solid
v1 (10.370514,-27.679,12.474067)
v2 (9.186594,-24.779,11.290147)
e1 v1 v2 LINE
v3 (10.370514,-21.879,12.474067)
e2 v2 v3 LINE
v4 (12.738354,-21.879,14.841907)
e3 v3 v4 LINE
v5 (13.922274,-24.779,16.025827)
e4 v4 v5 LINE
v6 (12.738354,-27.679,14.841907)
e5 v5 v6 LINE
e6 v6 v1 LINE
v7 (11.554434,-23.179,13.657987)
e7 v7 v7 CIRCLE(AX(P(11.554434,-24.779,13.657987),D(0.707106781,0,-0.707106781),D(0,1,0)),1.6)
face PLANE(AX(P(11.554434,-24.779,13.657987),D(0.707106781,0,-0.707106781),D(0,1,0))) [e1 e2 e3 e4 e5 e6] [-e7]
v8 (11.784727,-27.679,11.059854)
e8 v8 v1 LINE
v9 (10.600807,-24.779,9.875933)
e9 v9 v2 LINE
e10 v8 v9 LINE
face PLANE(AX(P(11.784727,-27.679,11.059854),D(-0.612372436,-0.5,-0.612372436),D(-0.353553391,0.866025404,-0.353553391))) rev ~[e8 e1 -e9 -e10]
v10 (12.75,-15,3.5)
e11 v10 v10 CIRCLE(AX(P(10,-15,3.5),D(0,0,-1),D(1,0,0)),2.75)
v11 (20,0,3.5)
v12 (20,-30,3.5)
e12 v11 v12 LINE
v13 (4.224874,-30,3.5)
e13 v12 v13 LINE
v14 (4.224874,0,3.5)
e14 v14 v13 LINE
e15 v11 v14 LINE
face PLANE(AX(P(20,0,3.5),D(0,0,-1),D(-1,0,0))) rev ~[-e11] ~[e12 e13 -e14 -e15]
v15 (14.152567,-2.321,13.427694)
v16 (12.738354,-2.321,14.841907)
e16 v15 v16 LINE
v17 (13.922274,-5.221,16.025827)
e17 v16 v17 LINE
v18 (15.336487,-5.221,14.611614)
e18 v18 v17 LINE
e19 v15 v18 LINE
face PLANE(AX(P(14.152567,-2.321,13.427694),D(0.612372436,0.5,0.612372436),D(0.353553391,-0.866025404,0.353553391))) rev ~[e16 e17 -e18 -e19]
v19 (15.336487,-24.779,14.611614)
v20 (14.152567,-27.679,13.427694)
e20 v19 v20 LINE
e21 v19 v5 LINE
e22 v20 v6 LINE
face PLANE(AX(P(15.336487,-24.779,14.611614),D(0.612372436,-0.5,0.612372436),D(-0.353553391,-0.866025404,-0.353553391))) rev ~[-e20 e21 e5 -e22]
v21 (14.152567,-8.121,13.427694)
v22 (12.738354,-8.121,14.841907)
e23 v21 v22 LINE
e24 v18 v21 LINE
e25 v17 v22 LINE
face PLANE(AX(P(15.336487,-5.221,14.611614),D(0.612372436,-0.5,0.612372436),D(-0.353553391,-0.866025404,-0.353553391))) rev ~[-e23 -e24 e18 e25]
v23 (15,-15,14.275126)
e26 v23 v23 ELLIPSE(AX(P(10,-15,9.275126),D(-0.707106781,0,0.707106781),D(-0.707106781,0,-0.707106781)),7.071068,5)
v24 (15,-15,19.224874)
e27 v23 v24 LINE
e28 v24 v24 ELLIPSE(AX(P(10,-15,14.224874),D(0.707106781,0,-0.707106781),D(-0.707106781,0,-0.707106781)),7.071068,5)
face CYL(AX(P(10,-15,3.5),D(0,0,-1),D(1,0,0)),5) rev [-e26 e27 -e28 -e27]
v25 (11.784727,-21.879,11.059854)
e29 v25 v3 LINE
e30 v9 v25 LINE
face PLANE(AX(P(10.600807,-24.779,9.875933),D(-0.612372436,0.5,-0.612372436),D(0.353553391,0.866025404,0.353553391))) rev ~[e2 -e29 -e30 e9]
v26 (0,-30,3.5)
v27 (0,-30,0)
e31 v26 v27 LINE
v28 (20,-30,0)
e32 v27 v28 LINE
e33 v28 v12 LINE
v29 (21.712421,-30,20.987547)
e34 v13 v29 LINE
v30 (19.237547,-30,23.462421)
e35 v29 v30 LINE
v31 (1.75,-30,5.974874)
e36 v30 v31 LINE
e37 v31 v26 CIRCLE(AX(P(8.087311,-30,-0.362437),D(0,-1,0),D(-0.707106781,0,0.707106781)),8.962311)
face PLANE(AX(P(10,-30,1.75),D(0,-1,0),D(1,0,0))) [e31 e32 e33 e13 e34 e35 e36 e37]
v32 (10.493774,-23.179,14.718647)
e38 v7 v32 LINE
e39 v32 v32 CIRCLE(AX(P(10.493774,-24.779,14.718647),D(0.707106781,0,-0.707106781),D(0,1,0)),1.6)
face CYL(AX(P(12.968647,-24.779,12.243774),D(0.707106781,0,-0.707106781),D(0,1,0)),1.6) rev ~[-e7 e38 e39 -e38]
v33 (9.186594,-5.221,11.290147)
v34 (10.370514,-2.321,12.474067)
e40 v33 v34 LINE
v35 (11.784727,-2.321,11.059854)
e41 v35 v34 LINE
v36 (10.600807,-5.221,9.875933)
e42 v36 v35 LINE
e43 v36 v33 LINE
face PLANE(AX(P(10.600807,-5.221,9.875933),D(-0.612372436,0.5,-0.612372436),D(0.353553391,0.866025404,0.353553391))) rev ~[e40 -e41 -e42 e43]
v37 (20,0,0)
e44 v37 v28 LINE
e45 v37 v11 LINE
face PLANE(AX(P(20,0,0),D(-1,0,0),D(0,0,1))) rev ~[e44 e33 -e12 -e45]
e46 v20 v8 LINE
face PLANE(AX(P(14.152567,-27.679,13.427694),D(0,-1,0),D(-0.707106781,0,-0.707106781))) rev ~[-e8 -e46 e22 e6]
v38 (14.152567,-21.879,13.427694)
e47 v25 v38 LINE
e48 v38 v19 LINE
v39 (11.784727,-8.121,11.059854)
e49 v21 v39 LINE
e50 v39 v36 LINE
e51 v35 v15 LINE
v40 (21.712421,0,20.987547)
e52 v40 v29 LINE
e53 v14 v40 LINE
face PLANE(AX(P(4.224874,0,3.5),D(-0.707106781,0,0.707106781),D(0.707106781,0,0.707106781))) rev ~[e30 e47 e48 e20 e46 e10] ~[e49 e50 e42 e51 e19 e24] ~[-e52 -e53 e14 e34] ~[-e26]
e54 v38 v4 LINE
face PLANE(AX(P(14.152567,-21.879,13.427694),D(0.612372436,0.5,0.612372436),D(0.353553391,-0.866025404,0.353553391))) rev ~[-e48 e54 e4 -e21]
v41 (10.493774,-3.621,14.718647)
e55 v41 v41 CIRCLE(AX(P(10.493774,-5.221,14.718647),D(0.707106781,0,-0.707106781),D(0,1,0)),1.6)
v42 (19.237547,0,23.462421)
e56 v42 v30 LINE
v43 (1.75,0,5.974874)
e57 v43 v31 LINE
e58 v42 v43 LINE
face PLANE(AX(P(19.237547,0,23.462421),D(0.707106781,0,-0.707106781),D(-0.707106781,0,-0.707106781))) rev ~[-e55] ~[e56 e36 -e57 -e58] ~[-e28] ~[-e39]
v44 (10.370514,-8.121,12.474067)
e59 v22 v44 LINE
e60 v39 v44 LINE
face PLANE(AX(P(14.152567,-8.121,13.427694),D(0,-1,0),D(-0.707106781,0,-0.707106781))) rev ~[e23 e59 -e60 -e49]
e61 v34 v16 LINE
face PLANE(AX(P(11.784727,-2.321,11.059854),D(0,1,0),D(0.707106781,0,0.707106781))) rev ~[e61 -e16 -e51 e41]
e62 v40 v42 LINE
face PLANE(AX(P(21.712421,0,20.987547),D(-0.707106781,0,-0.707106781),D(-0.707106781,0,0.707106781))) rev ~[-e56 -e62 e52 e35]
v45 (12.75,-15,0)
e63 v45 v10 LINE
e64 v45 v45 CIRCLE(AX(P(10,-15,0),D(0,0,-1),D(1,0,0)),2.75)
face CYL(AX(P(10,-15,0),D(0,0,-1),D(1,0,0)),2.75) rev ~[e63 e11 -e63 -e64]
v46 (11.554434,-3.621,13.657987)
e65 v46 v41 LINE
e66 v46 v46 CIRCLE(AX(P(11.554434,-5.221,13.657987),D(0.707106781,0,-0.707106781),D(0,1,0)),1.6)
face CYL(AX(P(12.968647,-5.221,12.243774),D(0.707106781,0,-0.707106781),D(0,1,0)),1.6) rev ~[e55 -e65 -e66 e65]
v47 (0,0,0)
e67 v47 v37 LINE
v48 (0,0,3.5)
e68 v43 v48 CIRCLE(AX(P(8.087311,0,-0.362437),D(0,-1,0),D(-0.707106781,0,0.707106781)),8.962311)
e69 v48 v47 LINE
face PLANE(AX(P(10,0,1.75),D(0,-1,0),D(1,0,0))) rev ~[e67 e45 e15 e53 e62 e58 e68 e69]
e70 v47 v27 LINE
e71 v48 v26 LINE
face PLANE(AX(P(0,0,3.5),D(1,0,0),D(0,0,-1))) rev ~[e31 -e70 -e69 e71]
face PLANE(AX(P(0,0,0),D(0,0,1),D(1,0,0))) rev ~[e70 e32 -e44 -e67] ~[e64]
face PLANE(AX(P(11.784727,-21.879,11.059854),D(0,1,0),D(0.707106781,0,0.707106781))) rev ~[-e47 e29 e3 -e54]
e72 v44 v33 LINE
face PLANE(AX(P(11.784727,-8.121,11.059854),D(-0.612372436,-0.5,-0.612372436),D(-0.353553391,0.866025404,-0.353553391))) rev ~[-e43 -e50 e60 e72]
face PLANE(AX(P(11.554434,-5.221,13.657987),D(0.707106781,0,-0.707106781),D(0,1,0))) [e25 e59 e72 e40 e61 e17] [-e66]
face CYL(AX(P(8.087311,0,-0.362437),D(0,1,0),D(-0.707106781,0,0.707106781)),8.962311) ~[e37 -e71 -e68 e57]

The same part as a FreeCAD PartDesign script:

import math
import FreeCAD as App
import Part
import Sketcher

V = App.Vector
Q = App.Units.Quantity


def add_polygon(sketch, points):
    """Adds a closed chain of lines whose ends are joined by coincident constraints."""
    first, n = sketch.GeometryCount, len(points)
    for a, b in zip(points, points[1:] + points[:1]):
        sketch.addGeometry(Part.LineSegment(App.Vector(*a, 0), App.Vector(*b, 0)), False)
    for i in range(n):
        sketch.addConstraint(Sketcher.Constraint("Coincident", first + i, 2, first + (i + 1) % n, 1))

doc = App.newDocument("Part")
body = doc.addObject("PartDesign::Body", "Body")

sketch1 = body.newObject("Sketcher::SketchObject", "Sketch")
sketch1.AttachmentSupport = (doc.getObject("XZ_Plane"), [""])
sketch1.MapMode = "FlatFace"
sketch1.addGeometry(Part.LineSegment(V(0, 3.5, 0), V(0, 0, 0)), False)
sketch1.addGeometry(Part.LineSegment(V(0, 0, 0), V(20, 0, 0)), False)
sketch1.addGeometry(Part.LineSegment(V(20, 0, 0), V(20, 3.5, 0)), False)
sketch1.addGeometry(Part.LineSegment(V(20, 3.5, 0), V(4.2, 3.5, 0)), False)
sketch1.addGeometry(Part.LineSegment(V(4.2, 3.5, 0), V(21.7, 21, 0)), False)
sketch1.addGeometry(Part.LineSegment(V(21.7, 21, 0), V(19.2, 23.5, 0)), False)
sketch1.addGeometry(Part.LineSegment(V(19.2, 23.5, 0), V(1.8, 6, 0)), False)
sketch1.addGeometry(Part.ArcOfCircle(Part.Circle(V(8.1, -0.4, 0), V(0, 0, 1), 9), math.radians(135), math.radians(154.47)), False)
sketch1.addConstraint(Sketcher.Constraint("Coincident", 0, 2, 1, 1))
sketch1.addConstraint(Sketcher.Constraint("Coincident", 1, 2, 2, 1))
sketch1.addConstraint(Sketcher.Constraint("Coincident", 2, 2, 3, 1))
sketch1.addConstraint(Sketcher.Constraint("Coincident", 3, 2, 4, 1))
sketch1.addConstraint(Sketcher.Constraint("Coincident", 4, 2, 5, 1))
sketch1.addConstraint(Sketcher.Constraint("Coincident", 5, 2, 6, 1))
sketch1.addConstraint(Sketcher.Constraint("Tangent", 6, 2, 7, 1))
sketch1.addConstraint(Sketcher.Constraint("Coincident", 7, 2, 0, 1))
sketch1.addConstraint(Sketcher.Constraint("Vertical", 0))
sketch1.addConstraint(Sketcher.Constraint("Horizontal", 1))
sketch1.addConstraint(Sketcher.Constraint("Vertical", 2))
sketch1.addConstraint(Sketcher.Constraint("Horizontal", 3))
sketch1.addConstraint(Sketcher.Constraint("Coincident", 0, 2, -1, 1))
sketch1.addConstraint(Sketcher.Constraint("Perpendicular", 4, 5))
sketch1.addConstraint(Sketcher.Constraint("Perpendicular", 5, 6))
sketch1.addConstraint(Sketcher.Constraint("Horizontal", 3, 2, 7, 2))
sketch1.addConstraint(Sketcher.Constraint("Equal", 4, 6))
sketch1.addConstraint(Sketcher.Constraint("DistanceX", 1, 1, 1, 2, 20.0))
sketch1.addConstraint(Sketcher.Constraint("Angle", 4, Q("45 deg")))
sketch1.addConstraint(Sketcher.Constraint("DistanceY", 0, 2, 0, 1, 3.5))
sketch1.addConstraint(Sketcher.Constraint("Distance", 5, 3.5))
sketch1.addConstraint(Sketcher.Constraint("DistanceX", -1, 1, 6, 2, 1.75))
sketch1.addConstraint(Sketcher.Constraint("DistanceX", -1, 1, 4, 2, 21.712421))
pad1 = body.newObject("PartDesign::Pad", "Pad")
pad1.Profile = sketch1
pad1.Length = 30

sketch2 = body.newObject("Sketcher::SketchObject", "Sketch001")
sketch2.AttachmentSupport = (doc.getObject("XY_Plane"), [""])
sketch2.MapMode = "FlatFace"
sketch2.addGeometry(Part.Circle(V(10, -15, 0), V(0, 0, 1), 2.8), False)
sketch2.addConstraint(Sketcher.Constraint("Diameter", 0, 5.5))
sketch2.addConstraint(Sketcher.Constraint("DistanceX", -1, 1, 0, 3, 10.0))
sketch2.addConstraint(Sketcher.Constraint("DistanceY", 0, 3, -1, 1, 15.0))
pocket1 = body.newObject("PartDesign::Pocket", "Pocket")
pocket1.Profile = sketch2
pocket1.Length = 3.5
pocket1.Reversed = True

sketch3 = body.newObject("Sketcher::SketchObject", "Sketch002")
sketch3.AttachmentSupport = (doc.getObject("XY_Plane"), [""])
sketch3.MapMode = "FlatFace"
sketch3.AttachmentOffset = App.Placement(V(0, 0, 3.5), App.Rotation())
sketch3.addGeometry(Part.Circle(V(10, -15, 0), V(0, 0, 1), 5), False)
sketch3.addConstraint(Sketcher.Constraint("Diameter", 0, 10.0))
sketch3.addConstraint(Sketcher.Constraint("DistanceX", -1, 1, 0, 3, 10.0))
sketch3.addConstraint(Sketcher.Constraint("DistanceY", 0, 3, -1, 1, 15.0))
pocket2 = body.newObject("PartDesign::Pocket", "Pocket001")
pocket2.Profile = sketch3
pocket2.Length = 16.724874
pocket2.Reversed = True

sketch4 = body.newObject("Sketcher::SketchObject", "Sketch003")
sketch4.Placement = App.Placement(V(0.362437, 0, -0.362437), App.Rotation(V(0, 1, 0), V(0.707106781, 0, 0.707106781), V(0.707106781, 0, -0.707106781), "ZXY"))
sketch4.addGeometry(Part.Circle(V(-5.2, 17.8, 0), V(0, 0, 1), 1.6), False)
sketch4.addGeometry(Part.Circle(V(-24.8, 17.8, 0), V(0, 0, 1), 1.6), False)
sketch4.addConstraint(Sketcher.Constraint("Equal", 0, 1))
sketch4.addConstraint(Sketcher.Constraint("Horizontal", 0, 3, 1, 3))
sketch4.addConstraint(Sketcher.Constraint("Diameter", 0, 3.2))
sketch4.addConstraint(Sketcher.Constraint("DistanceX", 0, 3, -1, 1, 5.221))
sketch4.addConstraint(Sketcher.Constraint("DistanceX", 1, 3, -1, 1, 24.779))
sketch4.addConstraint(Sketcher.Constraint("DistanceY", -1, 1, 0, 3, 17.827874))
pocket3 = body.newObject("PartDesign::Pocket", "Pocket002")
pocket3.Profile = sketch4
pocket3.Type = "ThroughAll"

sketch5 = body.newObject("Sketcher::SketchObject", "Sketch004")
sketch5.Placement = App.Placement(V(0.362437, 0, -0.362437), App.Rotation(V(0, 1, 0), V(0.707106781, 0, 0.707106781), V(0.707106781, 0, -0.707106781), "ZXY"))
add_polygon(sketch5, [(-21.9, 19.5), (-24.8, 21.2), (-27.7, 19.5), (-27.7, 16.2), (-24.8, 14.5), (-21.9, 16.2)])
sketch5.addGeometry(Part.Circle(V(-24.8, 17.8, 0), V(0, 0, 1), 1.6), False)
add_polygon(sketch5, [(-8.1, 16.2), (-5.2, 14.5), (-2.3, 16.2), (-2.3, 19.5), (-5.2, 21.2), (-8.1, 19.5)])
sketch5.addGeometry(Part.Circle(V(-5.2, 17.8, 0), V(0, 0, 1), 1.6), False)
sketch5.addConstraint(Sketcher.Constraint("Vertical", 2))
sketch5.addConstraint(Sketcher.Constraint("Vertical", 5))
sketch5.addConstraint(Sketcher.Constraint("Vertical", 9))
sketch5.addConstraint(Sketcher.Constraint("Vertical", 12))
sketch5.addConstraint(Sketcher.Constraint("Equal", 6, 13))
sketch5.addConstraint(Sketcher.Constraint("Parallel", 0, 3))
sketch5.addConstraint(Sketcher.Constraint("Parallel", 1, 4))
sketch5.addConstraint(Sketcher.Constraint("Parallel", 3, 7))
sketch5.addConstraint(Sketcher.Constraint("Parallel", 4, 8))
sketch5.addConstraint(Sketcher.Constraint("Parallel", 7, 10))
sketch5.addConstraint(Sketcher.Constraint("Parallel", 8, 11))
sketch5.addConstraint(Sketcher.Constraint("Horizontal", 6, 3, 13, 3))
sketch5.addConstraint(Sketcher.Constraint("Horizontal", 2, 2, 4, 2))
sketch5.addConstraint(Sketcher.Constraint("Horizontal", 1, 2, 5, 2))
sketch5.addConstraint(Sketcher.Constraint("Horizontal", 3, 2, 7, 2))
sketch5.addConstraint(Sketcher.Constraint("Horizontal", 4, 2, 8, 2))
sketch5.addConstraint(Sketcher.Constraint("Horizontal", 5, 2, 9, 2))
sketch5.addConstraint(Sketcher.Constraint("Horizontal", 0, 2, 10, 2))
sketch5.addConstraint(Sketcher.Constraint("Horizontal", 9, 2, 11, 2))
sketch5.addConstraint(Sketcher.Constraint("Vertical", 6, 3, 0, 2))
sketch5.addConstraint(Sketcher.Constraint("Vertical", 0, 2, 3, 2))
sketch5.addConstraint(Sketcher.Constraint("Vertical", 13, 3, 7, 2))
sketch5.addConstraint(Sketcher.Constraint("Diameter", 6, 3.2))
sketch5.addConstraint(Sketcher.Constraint("Angle", 0, Q("150 deg")))
sketch5.addConstraint(Sketcher.Constraint("DistanceX", 1, 2, 6, 3, 2.9))
sketch5.addConstraint(Sketcher.Constraint("DistanceX", 6, 3, -1, 1, 24.779))
sketch5.addConstraint(Sketcher.Constraint("DistanceX", 13, 3, -1, 1, 5.221))
sketch5.addConstraint(Sketcher.Constraint("DistanceY", 2, 2, 2, 1, 3.348632))
sketch5.addConstraint(Sketcher.Constraint("DistanceY", -1, 1, 1, 2, 19.50219))
sketch5.addConstraint(Sketcher.Constraint("DistanceY", 6, 3, 0, 2, 3.348632))
pocket4 = body.newObject("PartDesign::Pocket", "Pocket003")
pocket4.Profile = sketch5
pocket4.Length = 2

doc.recompute()
